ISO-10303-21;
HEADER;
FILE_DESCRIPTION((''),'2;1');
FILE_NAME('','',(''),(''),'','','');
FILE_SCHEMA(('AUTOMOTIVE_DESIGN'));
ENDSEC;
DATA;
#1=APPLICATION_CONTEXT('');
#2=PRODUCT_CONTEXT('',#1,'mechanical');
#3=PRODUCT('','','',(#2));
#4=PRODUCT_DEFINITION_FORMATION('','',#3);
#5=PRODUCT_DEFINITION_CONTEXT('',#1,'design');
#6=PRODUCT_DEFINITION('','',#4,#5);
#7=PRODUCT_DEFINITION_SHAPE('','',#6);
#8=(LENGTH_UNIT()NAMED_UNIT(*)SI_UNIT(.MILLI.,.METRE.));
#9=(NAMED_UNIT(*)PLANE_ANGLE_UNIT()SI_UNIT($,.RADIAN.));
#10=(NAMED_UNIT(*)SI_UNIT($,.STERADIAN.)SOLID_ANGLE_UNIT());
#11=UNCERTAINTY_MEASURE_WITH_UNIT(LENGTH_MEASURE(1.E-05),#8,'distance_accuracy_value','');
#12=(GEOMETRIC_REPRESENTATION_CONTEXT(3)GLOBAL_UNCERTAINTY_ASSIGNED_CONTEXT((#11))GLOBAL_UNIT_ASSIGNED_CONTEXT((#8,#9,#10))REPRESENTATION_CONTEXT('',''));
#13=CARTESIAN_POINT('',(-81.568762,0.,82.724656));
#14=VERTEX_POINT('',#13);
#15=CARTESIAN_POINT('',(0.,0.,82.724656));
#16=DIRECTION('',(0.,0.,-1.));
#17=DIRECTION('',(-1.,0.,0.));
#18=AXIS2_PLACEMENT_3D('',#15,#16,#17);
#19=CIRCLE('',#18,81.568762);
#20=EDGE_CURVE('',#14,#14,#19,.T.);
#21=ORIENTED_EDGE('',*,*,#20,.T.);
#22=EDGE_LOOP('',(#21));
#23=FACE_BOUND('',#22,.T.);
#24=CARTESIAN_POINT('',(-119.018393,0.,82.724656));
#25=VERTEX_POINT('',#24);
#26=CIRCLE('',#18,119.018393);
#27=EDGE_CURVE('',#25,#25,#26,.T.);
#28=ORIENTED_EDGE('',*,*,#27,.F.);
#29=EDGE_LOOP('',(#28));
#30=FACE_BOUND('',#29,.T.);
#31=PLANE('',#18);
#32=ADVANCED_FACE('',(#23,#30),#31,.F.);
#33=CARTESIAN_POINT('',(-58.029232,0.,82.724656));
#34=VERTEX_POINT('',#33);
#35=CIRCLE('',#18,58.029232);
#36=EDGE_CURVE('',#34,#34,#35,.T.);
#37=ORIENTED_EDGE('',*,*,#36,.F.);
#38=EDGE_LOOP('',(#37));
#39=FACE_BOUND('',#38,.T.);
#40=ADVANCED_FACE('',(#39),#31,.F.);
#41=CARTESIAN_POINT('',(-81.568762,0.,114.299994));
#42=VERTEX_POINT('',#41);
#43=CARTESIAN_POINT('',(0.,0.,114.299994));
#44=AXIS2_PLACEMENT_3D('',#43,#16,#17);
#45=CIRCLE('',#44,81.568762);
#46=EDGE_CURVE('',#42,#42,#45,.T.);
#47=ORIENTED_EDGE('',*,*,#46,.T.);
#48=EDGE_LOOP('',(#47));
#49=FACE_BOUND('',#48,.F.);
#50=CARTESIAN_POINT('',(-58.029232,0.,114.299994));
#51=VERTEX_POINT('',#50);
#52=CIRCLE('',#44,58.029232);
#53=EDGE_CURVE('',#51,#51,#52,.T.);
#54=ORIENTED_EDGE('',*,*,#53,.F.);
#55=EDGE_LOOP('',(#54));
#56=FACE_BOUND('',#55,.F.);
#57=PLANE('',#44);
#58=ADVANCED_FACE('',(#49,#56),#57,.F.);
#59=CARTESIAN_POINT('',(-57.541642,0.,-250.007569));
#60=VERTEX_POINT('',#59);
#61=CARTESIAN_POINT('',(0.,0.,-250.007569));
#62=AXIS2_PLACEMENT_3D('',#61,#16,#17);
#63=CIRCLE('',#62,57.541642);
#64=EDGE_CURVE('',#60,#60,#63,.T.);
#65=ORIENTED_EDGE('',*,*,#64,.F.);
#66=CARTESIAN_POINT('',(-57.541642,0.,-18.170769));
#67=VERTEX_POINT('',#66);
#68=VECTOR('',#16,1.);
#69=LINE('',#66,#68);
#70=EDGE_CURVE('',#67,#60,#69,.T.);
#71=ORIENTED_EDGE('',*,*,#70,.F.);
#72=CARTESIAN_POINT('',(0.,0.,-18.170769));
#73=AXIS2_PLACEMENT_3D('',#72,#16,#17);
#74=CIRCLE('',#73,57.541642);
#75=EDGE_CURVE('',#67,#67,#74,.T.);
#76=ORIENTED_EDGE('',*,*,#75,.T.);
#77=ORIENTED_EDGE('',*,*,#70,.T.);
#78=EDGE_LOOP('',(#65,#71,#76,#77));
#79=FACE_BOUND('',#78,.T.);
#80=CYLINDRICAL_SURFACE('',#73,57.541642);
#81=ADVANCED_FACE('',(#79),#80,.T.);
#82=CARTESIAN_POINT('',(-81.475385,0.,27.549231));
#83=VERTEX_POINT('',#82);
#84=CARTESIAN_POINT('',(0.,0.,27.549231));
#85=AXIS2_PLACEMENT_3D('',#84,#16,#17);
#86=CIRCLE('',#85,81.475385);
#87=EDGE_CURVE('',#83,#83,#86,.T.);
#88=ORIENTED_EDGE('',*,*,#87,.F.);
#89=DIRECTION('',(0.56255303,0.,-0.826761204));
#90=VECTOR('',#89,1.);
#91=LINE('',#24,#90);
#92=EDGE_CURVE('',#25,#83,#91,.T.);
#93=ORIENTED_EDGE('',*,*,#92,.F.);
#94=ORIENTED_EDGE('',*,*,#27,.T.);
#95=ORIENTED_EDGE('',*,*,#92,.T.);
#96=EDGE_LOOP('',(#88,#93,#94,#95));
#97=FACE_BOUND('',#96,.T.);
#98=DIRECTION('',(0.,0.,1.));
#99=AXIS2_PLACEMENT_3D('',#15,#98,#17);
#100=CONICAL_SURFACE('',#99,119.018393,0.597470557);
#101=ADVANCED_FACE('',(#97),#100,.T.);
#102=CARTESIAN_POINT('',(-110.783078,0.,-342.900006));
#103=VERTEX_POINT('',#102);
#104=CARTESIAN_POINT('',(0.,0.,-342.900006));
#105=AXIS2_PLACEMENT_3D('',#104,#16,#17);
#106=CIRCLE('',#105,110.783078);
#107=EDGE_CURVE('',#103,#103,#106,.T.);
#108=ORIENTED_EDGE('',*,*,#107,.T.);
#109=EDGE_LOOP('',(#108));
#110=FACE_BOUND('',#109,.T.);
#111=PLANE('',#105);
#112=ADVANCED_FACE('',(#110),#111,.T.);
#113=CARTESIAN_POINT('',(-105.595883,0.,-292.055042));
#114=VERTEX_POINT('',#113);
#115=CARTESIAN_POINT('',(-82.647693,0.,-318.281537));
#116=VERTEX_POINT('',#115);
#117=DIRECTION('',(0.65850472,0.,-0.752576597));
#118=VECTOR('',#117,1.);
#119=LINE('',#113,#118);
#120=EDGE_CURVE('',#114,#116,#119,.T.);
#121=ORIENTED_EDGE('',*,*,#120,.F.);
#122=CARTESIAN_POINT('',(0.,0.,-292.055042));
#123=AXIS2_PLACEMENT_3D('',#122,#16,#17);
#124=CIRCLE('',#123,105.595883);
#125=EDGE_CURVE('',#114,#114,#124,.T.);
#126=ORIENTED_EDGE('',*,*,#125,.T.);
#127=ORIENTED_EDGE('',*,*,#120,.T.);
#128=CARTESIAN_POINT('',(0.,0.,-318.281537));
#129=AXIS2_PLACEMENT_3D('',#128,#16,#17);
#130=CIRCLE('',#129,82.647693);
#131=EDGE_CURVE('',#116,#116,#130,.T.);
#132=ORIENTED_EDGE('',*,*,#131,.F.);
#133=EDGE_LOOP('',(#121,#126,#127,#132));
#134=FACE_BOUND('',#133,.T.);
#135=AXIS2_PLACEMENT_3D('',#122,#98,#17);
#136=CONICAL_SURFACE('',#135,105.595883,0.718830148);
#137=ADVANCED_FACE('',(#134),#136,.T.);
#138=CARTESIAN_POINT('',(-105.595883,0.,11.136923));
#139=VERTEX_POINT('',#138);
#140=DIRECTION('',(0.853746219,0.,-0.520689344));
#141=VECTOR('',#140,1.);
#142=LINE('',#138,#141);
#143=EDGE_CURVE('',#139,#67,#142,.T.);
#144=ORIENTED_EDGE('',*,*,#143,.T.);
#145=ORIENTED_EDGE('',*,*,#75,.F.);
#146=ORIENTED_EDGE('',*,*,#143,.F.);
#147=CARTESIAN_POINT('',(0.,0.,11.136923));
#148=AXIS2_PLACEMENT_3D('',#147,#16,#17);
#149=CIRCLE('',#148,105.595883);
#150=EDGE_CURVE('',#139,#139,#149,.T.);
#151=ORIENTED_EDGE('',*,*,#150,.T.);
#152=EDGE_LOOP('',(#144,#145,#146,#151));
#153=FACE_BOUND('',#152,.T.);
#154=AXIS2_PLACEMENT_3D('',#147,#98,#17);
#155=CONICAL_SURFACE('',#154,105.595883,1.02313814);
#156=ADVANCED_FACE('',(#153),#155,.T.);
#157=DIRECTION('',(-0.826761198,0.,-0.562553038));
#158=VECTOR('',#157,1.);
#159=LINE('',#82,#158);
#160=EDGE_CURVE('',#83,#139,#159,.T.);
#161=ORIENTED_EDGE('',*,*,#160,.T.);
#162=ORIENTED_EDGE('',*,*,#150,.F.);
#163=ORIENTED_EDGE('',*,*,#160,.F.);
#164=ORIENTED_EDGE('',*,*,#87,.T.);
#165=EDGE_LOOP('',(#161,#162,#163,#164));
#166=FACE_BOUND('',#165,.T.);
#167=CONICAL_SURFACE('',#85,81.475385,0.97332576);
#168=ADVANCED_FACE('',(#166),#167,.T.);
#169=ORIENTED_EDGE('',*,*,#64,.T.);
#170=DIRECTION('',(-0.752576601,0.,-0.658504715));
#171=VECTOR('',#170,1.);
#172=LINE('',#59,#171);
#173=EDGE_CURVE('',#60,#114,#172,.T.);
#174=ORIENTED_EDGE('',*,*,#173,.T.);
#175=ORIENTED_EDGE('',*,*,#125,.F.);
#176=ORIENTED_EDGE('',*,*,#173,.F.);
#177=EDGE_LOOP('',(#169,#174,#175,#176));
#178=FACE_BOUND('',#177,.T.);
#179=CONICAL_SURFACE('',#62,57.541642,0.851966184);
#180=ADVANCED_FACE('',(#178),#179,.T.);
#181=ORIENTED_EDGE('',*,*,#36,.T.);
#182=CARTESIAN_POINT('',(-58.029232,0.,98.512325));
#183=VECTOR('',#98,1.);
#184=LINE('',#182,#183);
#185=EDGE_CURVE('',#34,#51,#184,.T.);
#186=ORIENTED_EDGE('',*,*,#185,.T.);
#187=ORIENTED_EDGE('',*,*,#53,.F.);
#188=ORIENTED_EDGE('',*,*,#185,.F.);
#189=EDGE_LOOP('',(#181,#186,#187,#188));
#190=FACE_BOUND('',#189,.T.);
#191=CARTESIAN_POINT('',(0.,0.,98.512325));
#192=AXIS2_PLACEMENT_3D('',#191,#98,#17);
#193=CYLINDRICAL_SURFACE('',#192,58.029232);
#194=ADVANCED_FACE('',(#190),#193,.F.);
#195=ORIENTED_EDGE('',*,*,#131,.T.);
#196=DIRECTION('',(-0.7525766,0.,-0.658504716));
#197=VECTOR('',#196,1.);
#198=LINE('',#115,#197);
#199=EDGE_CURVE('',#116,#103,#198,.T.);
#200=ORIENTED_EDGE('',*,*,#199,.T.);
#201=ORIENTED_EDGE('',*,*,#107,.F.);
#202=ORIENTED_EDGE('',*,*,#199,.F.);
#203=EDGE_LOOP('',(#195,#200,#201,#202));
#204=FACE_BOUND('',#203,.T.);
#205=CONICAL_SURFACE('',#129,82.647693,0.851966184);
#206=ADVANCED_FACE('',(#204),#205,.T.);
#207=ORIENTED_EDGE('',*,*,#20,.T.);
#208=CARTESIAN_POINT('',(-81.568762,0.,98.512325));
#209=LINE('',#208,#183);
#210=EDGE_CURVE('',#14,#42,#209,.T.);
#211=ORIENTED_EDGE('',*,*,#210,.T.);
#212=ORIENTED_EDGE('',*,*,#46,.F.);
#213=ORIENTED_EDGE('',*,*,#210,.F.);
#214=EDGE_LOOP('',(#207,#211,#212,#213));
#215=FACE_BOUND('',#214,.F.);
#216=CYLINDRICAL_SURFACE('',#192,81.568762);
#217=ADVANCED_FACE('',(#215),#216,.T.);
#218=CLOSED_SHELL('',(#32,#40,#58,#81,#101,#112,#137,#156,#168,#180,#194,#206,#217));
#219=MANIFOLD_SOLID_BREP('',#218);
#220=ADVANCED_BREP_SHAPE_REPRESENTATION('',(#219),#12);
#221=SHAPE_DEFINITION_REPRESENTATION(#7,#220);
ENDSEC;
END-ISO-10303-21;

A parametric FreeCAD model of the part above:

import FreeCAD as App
import Part
import Sketcher
from FreeCAD import Vector
Q = App.Units.Quantity


def add_polygon(sketch, points):
    """Adds a closed chain of lines whose ends are joined by coincident constraints."""
    first, n = sketch.GeometryCount, len(points)
    for a, b in zip(points, points[1:] + points[:1]):
        sketch.addGeometry(Part.LineSegment(App.Vector(*a, 0), App.Vector(*b, 0)), False)
    for i in range(n):
        sketch.addConstraint(Sketcher.Constraint("Coincident", first + i, 2, first + (i + 1) % n, 1))

doc = App.newDocument("Part")
params = doc.addObject("Spreadsheet::Sheet", "Params")
for row, (alias, value) in enumerate([
    ("revolution_angle", "360 deg"),
], start=1):
    params.set(f"A{row}", alias)
    params.set(f"B{row}", "=" + value)
    params.setAlias(f"B{row}", alias)

body = doc.addObject("PartDesign::Body", "Body")

# Sketch on XZ plane
sketch1 = doc.addObject("Sketcher::SketchObject", "Sketch")
body.addObject(sketch1)
sketch1.AttachmentSupport = (doc.XZ_Plane, [""])
sketch1.MapMode = "FlatFace"
add_polygon(sketch1, [(0, -343), (0, 83), (-58, 83), (-58, 114), (-82, 114), (-82, 83), (-119, 83), (-81, 28), (-106, 11), (-58, -18), (-58, -250), (-106, -292), (-83, -318), (-111, -343)])  # lines 0-13
sketch1.addConstraint(Sketcher.Constraint("Vertical", 0))
sketch1.addConstraint(Sketcher.Constraint("Horizontal", 1))
sketch1.addConstraint(Sketcher.Constraint("Vertical", 2))
sketch1.addConstraint(Sketcher.Constraint("Horizontal", 3))
sketch1.addConstraint(Sketcher.Constraint("Vertical", 4))
sketch1.addConstraint(Sketcher.Constraint("Horizontal", 5))
sketch1.addConstraint(Sketcher.Constraint("Vertical", 9))
sketch1.addConstraint(Sketcher.Constraint("Horizontal", 13))
sketch1.addConstraint(Sketcher.Constraint("PointOnObject", 0, 2, -2))
sketch1.addConstraint(Sketcher.Constraint("Perpendicular", 6, 7))
sketch1.addConstraint(Sketcher.Constraint("Perpendicular", 10, 11))
sketch1.addConstraint(Sketcher.Constraint("Perpendicular", 11, 12))
sketch1.addConstraint(Sketcher.Constraint("Horizontal", 1, 2, 4, 2))
sketch1.addConstraint(Sketcher.Constraint("Vertical", 7, 2, 10, 2))
sketch1.addConstraint(Sketcher.Constraint("DistanceY", 8, 2, 6, 2, Q("45.72 mm")))
sketch1.addConstraint(Sketcher.Constraint("DistanceY", 9, 2, 9, 1, Q("231.8368 mm")))
sketch1.addConstraint(Sketcher.Constraint("DistanceX", 3, 2, 3, 1, Q("23.53953 mm")))
sketch1.addConstraint(Sketcher.Constraint("DistanceX", 5, 2, 5, 1, Q("37.449631 mm")))
sketch1.addConstraint(Sketcher.Constraint("DistanceX", 13, 1, 13, 2, Q("110.783078 mm")))
sketch1.addConstraint(Sketcher.Constraint("DistanceY", 0, 1, 0, 2, Q("425.624662 mm")))
sketch1.addConstraint(Sketcher.Constraint("DistanceY", 2, 1, 2, 2, Q("31.575338 mm")))
sketch1.addConstraint(Sketcher.Constraint("DistanceY", 10, 2, 5, 2, Q("374.779698 mm")))
sketch1.addConstraint(Sketcher.Constraint("Distance", 8, Q("56.286329 mm")))
sketch1.addConstraint(Sketcher.Constraint("Distance", 12, Q("37.38541 mm")))
sketch1.addConstraint(Sketcher.Constraint("DistanceX", 1, 2, 1, 1, Q("58.029232 mm")))
sketch1.addConstraint(Sketcher.Constraint("DistanceY", -1, 1, 6, 2, Q("27.549231 mm")))
sketch1.addConstraint(Sketcher.Constraint("DistanceY", 10, 2, -1, 1, Q("292.055042 mm")))
sketch1.addConstraint(Sketcher.Constraint("DistanceX", 5, 2, 7, 2, Q("13.42251 mm")))
revolution = doc.addObject("PartDesign::Revolution", "Revolution")
body.addObject(revolution)
revolution.Profile = sketch1
revolution.ReferenceAxis = (sketch1, ["V_Axis"])
revolution.setExpression("Angle", "Params.revolution_angle")

doc.recompute()
